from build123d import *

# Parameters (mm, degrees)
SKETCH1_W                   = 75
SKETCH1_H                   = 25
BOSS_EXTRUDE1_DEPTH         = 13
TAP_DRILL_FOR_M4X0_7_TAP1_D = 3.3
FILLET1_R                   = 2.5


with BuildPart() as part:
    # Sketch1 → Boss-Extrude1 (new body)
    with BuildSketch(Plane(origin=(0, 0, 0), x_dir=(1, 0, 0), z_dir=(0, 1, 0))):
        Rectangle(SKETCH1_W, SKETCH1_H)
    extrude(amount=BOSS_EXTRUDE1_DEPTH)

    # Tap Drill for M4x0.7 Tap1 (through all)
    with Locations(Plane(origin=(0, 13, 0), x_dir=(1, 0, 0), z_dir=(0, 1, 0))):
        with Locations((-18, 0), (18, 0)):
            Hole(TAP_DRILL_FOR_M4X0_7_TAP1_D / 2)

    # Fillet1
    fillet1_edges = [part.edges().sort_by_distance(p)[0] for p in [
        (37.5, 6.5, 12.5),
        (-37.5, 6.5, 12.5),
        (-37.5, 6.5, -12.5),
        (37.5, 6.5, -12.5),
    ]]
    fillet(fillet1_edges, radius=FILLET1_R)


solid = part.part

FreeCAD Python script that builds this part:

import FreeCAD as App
import Part
import Sketcher
from FreeCAD import Vector


def edges_at(feature, points):
    """Names of the edges that pass closest to the given points."""
    edges = feature.Shape.Edges
    near = lambda p: min(range(len(edges)), key=lambda i: edges[i].distToShape(Part.Vertex(*p))[0])
    return sorted({f"Edge{near(p) + 1}" for p in points})


def add_polygon(sketch, points):
    """Adds a closed chain of lines whose ends are joined by coincident constraints."""
    first, n = sketch.GeometryCount, len(points)
    for a, b in zip(points, points[1:] + points[:1]):
        sketch.addGeometry(Part.LineSegment(App.Vector(*a, 0), App.Vector(*b, 0)), False)
    for i in range(n):
        sketch.addConstraint(Sketcher.Constraint("Coincident", first + i, 2, first + (i + 1) % n, 1))

doc = App.newDocument("Part")
body = doc.addObject("PartDesign::Body", "Body")

sketch1 = doc.addObject("Sketcher::SketchObject", "Sketch")
body.addObject(sketch1)
sketch1.AttachmentSupport = (doc.XZ_Plane, [""])
sketch1.MapMode = "FlatFace"
add_polygon(sketch1, [(-38, -12), (-38, 12), (38, 12), (38, -12)])
sketch1.addConstraint([
    Sketcher.Constraint("Vertical", 0),
    Sketcher.Constraint("Horizontal", 1),
    Sketcher.Constraint("Vertical", 2),
    Sketcher.Constraint("Horizontal", 3),
    Sketcher.Constraint("Symmetric", 0, 2, 2, 2, -1, 1),
    Sketcher.Constraint("DistanceX", 1, 1, 1, 2, 75.0),
    Sketcher.Constraint("DistanceY", 0, 1, 0, 2, 25.0),
])
pad1 = doc.addObject("PartDesign::Pad", "Pad")
body.addObject(pad1)
pad1.Profile = sketch1
pad1.Length = 13
pad1.Reversed = True

sketch2 = doc.addObject("Sketcher::SketchObject", "Sketch001")
body.addObject(sketch2)
sketch2.AttachmentSupport = (doc.XZ_Plane, [""])
sketch2.MapMode = "FlatFace"
sketch2.AttachmentOffset = App.Placement(Vector(0, 0, -13), App.Rotation())
sketch2.addGeometry([
    Part.Circle(Vector(-18, 0, 0), Vector(0, 0, 1), 1.6),
    Part.Circle(Vector(18, 0, 0), Vector(0, 0, 1), 1.6),
], False)
sketch2.addConstraint([
    Sketcher.Constraint("Equal", 0, 1),
    Sketcher.Constraint("Symmetric", 0, 3, 1, 3, -1, 1),
    Sketcher.Constraint("PointOnObject", 0, 3, -1),
    Sketcher.Constraint("Diameter", 0, 3.3),
    Sketcher.Constraint("DistanceX", 0, 3, -1, 1, 18.0),
])
doc.recompute()
hole = doc.addObject("PartDesign::Hole", "Hole")
body.addObject(hole)
hole.Profile = sketch2
hole.ThreadType = "None"
hole.Diameter = 3.3
hole.DepthType = "ThroughAll"
hole.Reversed = True
doc.recompute()

fillet = doc.addObject("PartDesign::Fillet", "Fillet")
body.addObject(fillet)
fillet.Base = (hole, edges_at(hole, [
    (37.5, 6.5, 12.5),
    (-37.5, 6.5, 12.5),
    (-37.5, 6.5, -12.5),
    (37.5, 6.5, -12.5),
]))
fillet.Radius = 2.5

doc.recompute()
